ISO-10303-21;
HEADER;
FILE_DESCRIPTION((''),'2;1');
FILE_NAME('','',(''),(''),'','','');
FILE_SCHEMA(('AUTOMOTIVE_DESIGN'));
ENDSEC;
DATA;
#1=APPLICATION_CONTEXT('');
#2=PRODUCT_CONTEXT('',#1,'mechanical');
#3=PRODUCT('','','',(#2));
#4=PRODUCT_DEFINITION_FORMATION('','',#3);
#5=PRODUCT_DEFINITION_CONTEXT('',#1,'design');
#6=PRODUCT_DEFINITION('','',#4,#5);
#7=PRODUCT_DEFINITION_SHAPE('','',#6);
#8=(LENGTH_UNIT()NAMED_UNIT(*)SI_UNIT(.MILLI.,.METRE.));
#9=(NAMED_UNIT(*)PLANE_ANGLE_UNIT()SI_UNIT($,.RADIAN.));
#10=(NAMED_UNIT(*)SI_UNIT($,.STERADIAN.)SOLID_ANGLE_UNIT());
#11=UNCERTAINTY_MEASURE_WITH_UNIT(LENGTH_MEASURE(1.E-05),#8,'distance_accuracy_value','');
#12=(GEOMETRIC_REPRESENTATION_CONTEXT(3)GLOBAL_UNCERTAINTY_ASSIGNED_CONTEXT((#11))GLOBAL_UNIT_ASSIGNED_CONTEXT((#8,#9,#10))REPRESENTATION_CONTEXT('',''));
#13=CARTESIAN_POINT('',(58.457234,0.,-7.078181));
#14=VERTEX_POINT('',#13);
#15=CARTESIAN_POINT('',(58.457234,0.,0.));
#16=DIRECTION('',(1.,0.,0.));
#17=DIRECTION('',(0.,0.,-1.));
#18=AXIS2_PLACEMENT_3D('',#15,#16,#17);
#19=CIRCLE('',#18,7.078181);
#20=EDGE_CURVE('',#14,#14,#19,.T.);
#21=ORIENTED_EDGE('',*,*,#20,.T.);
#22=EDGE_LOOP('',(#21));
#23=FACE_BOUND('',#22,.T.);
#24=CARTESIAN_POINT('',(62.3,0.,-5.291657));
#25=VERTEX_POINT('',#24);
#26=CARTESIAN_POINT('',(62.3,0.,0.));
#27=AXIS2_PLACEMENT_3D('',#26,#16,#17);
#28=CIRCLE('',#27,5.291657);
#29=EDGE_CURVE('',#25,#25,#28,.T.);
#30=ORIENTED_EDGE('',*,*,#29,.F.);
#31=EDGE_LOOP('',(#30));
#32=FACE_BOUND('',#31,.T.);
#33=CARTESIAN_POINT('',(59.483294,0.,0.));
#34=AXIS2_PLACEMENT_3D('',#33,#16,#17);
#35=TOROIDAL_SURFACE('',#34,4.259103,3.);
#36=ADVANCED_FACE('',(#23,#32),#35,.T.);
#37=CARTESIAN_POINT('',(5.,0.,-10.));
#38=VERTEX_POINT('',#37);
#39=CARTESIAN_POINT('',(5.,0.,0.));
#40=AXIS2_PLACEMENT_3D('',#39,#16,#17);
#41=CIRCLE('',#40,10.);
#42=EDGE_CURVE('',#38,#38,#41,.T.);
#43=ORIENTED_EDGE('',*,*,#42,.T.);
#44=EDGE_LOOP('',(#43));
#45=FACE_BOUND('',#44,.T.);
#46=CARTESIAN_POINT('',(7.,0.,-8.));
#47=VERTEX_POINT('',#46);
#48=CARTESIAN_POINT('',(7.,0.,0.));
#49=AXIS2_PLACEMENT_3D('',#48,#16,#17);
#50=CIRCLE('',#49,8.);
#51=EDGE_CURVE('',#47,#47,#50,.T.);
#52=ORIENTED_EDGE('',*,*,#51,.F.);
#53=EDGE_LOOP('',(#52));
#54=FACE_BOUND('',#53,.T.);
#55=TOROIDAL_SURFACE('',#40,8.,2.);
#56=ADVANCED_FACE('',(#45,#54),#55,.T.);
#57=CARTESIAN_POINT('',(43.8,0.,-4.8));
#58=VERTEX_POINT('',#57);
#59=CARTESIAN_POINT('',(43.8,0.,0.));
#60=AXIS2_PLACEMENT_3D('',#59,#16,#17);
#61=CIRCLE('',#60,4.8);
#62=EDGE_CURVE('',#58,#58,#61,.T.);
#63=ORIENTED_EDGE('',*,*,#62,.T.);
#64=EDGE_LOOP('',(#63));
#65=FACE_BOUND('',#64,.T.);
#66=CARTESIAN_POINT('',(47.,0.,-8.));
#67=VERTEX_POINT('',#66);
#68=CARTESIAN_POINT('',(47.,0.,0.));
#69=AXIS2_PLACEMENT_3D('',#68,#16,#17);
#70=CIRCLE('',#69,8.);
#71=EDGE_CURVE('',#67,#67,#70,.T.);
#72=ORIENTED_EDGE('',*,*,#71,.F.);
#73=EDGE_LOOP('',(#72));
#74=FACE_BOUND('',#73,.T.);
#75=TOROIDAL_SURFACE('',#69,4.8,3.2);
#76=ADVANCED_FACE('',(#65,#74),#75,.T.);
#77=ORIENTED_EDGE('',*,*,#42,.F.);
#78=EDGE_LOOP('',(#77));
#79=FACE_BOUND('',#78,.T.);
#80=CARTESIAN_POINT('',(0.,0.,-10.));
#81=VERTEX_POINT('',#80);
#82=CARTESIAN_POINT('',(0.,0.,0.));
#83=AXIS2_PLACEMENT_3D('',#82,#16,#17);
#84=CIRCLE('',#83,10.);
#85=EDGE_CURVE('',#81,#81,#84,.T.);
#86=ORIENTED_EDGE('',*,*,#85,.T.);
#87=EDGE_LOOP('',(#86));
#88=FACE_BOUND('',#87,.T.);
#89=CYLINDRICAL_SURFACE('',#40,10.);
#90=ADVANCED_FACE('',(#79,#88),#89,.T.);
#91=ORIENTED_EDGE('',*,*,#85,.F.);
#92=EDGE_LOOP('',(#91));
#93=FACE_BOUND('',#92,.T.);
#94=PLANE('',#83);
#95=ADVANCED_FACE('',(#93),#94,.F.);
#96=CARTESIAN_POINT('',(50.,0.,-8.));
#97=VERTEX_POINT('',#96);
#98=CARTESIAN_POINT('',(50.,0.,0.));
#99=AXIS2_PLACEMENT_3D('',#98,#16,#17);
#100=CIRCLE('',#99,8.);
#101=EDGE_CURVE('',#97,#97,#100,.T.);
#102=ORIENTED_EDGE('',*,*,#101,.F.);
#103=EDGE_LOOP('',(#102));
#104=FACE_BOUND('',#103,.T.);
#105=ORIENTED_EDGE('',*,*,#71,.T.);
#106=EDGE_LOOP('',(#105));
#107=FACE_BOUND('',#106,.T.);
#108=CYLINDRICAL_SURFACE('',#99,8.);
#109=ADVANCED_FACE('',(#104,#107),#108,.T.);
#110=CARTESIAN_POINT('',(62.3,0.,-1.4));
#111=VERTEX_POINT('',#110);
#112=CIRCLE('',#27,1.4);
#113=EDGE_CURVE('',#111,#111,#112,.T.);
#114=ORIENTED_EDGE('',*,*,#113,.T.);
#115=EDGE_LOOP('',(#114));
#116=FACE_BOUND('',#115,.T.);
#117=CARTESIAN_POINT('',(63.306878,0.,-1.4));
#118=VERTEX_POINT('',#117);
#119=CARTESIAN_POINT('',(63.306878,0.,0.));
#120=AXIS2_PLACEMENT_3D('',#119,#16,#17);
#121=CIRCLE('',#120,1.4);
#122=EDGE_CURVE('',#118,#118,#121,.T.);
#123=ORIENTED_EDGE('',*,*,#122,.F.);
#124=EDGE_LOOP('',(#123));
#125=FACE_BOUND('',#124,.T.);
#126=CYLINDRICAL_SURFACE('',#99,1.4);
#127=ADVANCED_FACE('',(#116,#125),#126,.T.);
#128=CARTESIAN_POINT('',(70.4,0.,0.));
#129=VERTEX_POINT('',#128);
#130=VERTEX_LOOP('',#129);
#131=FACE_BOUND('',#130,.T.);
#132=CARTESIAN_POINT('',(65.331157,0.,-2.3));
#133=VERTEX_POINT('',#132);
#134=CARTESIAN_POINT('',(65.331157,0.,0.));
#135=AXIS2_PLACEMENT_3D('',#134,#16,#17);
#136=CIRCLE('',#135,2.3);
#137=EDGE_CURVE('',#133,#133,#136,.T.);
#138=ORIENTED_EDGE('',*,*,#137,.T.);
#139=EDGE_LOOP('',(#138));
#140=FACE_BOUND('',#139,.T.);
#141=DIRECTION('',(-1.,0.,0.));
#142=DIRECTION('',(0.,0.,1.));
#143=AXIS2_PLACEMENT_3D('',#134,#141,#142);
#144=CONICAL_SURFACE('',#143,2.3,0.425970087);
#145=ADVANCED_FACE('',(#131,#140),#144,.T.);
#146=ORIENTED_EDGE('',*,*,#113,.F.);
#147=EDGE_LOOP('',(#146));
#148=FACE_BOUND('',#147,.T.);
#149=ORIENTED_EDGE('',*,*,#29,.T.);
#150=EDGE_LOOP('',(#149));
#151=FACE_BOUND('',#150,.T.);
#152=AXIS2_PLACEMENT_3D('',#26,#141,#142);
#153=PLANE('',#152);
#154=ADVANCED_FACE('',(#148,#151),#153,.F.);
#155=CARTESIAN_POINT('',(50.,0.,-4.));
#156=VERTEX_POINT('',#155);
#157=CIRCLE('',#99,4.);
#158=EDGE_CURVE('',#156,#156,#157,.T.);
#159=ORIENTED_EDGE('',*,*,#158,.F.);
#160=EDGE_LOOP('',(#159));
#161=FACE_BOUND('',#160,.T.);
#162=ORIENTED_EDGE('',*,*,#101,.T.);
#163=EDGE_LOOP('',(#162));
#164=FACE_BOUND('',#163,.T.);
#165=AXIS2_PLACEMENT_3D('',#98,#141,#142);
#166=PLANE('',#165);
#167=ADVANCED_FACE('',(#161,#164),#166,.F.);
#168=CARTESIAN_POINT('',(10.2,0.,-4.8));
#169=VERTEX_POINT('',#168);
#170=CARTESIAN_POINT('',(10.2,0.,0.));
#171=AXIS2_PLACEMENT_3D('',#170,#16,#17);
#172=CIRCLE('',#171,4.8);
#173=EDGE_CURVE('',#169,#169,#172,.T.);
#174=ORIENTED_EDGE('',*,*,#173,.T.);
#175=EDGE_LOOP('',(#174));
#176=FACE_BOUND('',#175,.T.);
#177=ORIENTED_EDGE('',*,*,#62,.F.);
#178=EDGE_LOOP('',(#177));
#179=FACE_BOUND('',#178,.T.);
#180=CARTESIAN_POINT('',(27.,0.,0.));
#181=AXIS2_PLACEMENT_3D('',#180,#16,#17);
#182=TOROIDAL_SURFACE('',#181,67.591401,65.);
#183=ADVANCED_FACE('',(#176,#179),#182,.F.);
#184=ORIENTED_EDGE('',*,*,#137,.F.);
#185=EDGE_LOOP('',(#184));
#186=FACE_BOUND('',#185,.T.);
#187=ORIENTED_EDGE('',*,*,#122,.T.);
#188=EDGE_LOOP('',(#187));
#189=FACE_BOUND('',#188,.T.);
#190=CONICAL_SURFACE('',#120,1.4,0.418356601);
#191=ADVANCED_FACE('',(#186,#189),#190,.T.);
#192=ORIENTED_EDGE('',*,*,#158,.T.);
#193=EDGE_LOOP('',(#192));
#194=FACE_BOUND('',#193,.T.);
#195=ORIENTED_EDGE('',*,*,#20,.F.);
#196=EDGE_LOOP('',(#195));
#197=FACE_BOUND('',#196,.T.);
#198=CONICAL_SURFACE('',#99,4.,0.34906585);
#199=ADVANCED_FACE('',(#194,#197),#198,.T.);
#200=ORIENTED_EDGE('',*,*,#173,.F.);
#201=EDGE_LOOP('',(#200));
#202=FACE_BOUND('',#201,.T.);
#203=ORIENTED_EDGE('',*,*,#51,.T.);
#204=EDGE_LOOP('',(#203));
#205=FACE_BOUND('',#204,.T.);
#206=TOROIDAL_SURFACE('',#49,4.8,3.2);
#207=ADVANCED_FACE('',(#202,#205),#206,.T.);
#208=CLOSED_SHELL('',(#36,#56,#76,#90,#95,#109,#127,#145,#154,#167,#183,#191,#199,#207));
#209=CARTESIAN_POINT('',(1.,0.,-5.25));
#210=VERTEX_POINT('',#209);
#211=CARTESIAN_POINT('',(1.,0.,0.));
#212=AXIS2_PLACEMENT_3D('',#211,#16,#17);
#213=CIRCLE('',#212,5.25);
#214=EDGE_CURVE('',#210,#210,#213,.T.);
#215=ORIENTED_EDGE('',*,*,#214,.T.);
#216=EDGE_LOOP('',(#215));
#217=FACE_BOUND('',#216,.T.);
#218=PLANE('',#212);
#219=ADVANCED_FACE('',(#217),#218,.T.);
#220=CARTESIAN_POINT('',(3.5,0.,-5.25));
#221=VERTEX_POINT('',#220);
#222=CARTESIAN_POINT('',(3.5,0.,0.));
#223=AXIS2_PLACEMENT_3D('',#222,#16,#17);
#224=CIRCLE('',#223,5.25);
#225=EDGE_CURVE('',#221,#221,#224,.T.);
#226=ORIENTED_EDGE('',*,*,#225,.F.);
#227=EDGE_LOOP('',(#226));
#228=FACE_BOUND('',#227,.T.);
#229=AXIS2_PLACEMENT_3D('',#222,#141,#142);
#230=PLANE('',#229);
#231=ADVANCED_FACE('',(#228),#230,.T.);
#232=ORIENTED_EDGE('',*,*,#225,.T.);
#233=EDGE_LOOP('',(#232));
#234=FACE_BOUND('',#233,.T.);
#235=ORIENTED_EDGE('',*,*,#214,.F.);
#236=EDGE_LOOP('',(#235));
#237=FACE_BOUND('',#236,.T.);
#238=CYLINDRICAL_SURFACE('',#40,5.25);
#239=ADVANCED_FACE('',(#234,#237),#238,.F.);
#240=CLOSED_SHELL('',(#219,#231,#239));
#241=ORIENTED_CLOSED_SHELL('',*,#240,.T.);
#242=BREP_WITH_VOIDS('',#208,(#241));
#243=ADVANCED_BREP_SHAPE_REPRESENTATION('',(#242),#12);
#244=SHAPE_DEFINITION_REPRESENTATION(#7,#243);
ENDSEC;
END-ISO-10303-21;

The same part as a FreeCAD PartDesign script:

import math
import FreeCAD as App
import Part
import Sketcher
from FreeCAD import Vector
Q = App.Units.Quantity

doc = App.newDocument("Part")
params = doc.addObject("Spreadsheet::Sheet", "Params")
for row, (alias, value) in enumerate([
    ("sketch1_radius", "2 mm"),
    ("sketch1_radius2", "3.2 mm"),
    ("sketch1_width", "1 mm"),
    ("sketch1_width2", "5 mm"),
    ("sketch1_height", "10 mm"),
    ("revolution_angle", "360 deg"),
    ("sketch2_radius", "3 mm"),
    ("sketch2_radius2", "65 mm"),
    ("sketch2_radius3", "3.2 mm"),
    ("sketch2_width", "3 mm"),
    ("sketch2_height", "4 mm"),
    ("revolution2_angle", "360 deg"),
], start=1):
    params.set(f"A{row}", alias)
    params.set(f"B{row}", "=" + value)
    params.setAlias(f"B{row}", alias)

body = doc.addObject("PartDesign::Body", "Body")

# Sketch on XZ plane
sketch1 = body.newObject("Sketcher::SketchObject", "Sketch")
sketch1.AttachmentSupport = (doc.getObject("XZ_Plane"), [""])
sketch1.MapMode = "FlatFace"
sketch1.addGeometry(Part.LineSegment(Vector(0, -10, 0), Vector(0, 0, 0)), False)
sketch1.addGeometry(Part.LineSegment(Vector(0, 0, 0), Vector(1, 0, 0)), False)
sketch1.addGeometry(Part.LineSegment(Vector(1, 0, 0), Vector(1, -5.2, 0)), False)
sketch1.addGeometry(Part.LineSegment(Vector(1, -5.2, 0), Vector(3.5, -5.2, 0)), False)
sketch1.addGeometry(Part.LineSegment(Vector(3.5, -5.2, 0), Vector(3.5, 0, 0)), False)
sketch1.addGeometry(Part.LineSegment(Vector(3.5, 0, 0), Vector(10.2, 0, 0)), False)
sketch1.addGeometry(Part.LineSegment(Vector(10.2, 0, 0), Vector(10.2, -4.8, 0)), False)
sketch1.addGeometry(Part.ArcOfCircle(Part.Circle(Vector(7, -4.8, 0), Vector(0, 0, 1), 3.2), math.radians(-90), math.radians(0)), False)
sketch1.addGeometry(Part.ArcOfCircle(Part.Circle(Vector(5, -8, 0), Vector(0, 0, 1), 2), math.radians(-90), math.radians(0)), False)
sketch1.addGeometry(Part.LineSegment(Vector(5, -10, 0), Vector(0, -10, 0)), False)
sketch1.addConstraint(Sketcher.Constraint("Coincident", 0, 2, 1, 1))
sketch1.addConstraint(Sketcher.Constraint("Coincident", 1, 2, 2, 1))
sketch1.addConstraint(Sketcher.Constraint("Coincident", 2, 2, 3, 1))
sketch1.addConstraint(Sketcher.Constraint("Coincident", 3, 2, 4, 1))
sketch1.addConstraint(Sketcher.Constraint("Coincident", 4, 2, 5, 1))
sketch1.addConstraint(Sketcher.Constraint("Coincident", 5, 2, 6, 1))
sketch1.addConstraint(Sketcher.Constraint("Tangent", 6, 2, 7, 2))
sketch1.addConstraint(Sketcher.Constraint("Coincident", 7, 1, 8, 2))
sketch1.addConstraint(Sketcher.Constraint("Tangent", 8, 1, 9, 1))
sketch1.addConstraint(Sketcher.Constraint("Coincident", 9, 2, 0, 1))
sketch1.addConstraint(Sketcher.Constraint("Vertical", 0))
sketch1.addConstraint(Sketcher.Constraint("Horizontal", 1))
sketch1.addConstraint(Sketcher.Constraint("Vertical", 2))
sketch1.addConstraint(Sketcher.Constraint("Horizontal", 3))
sketch1.addConstraint(Sketcher.Constraint("Vertical", 4))
sketch1.addConstraint(Sketcher.Constraint("Horizontal", 5))
sketch1.addConstraint(Sketcher.Constraint("Vertical", 6))
sketch1.addConstraint(Sketcher.Constraint("Horizontal", 9))
sketch1.addConstraint(Sketcher.Constraint("Coincident", 0, 2, -1, 1))
sketch1.addConstraint(Sketcher.Constraint("PointOnObject", 4, 2, -1))
sketch1.addConstraint(Sketcher.Constraint("Horizontal", 8, 3, 7, 1))
sketch1.addConstraint(Sketcher.Constraint("Radius", 8, Q("2 mm")))
sketch1.addConstraint(Sketcher.Constraint("Radius", 7, Q("3.2 mm")))
sketch1.addConstraint(Sketcher.Constraint("DistanceX", 1, 1, 1, 2, Q("1 mm")))
sketch1.addConstraint(Sketcher.Constraint("DistanceX", 9, 2, 9, 1, Q("5 mm")))
sketch1.addConstraint(Sketcher.Constraint("DistanceY", 0, 1, 0, 2, Q("10 mm")))
sketch1.addConstraint(Sketcher.Constraint("DistanceX", 3, 1, 3, 2, Q("2.5 mm")))
sketch1.addConstraint(Sketcher.Constraint("DistanceX", 5, 1, 5, 2, Q("6.7 mm")))
sketch1.addConstraint(Sketcher.Constraint("DistanceY", 2, 2, 2, 1, Q("5.25 mm")))
sketch1.setExpression("Constraints[21]", "Params.sketch1_radius")
sketch1.setExpression("Constraints[22]", "Params.sketch1_radius2")
sketch1.setExpression("Constraints[23]", "Params.sketch1_width")
sketch1.setExpression("Constraints[24]", "Params.sketch1_width2")
sketch1.setExpression("Constraints[25]", "Params.sketch1_height")
revolution = body.newObject("PartDesign::Revolution", "Revolution")
revolution.Profile = sketch1
revolution.ReferenceAxis = (sketch1, ["H_Axis"])
revolution.setExpression("Angle", "Params.revolution_angle")

# Sketch on XZ plane
sketch2 = body.newObject("Sketcher::SketchObject", "Sketch001")
sketch2.AttachmentSupport = (doc.getObject("XZ_Plane"), [""])
sketch2.MapMode = "FlatFace"
sketch2.addGeometry(Part.LineSegment(Vector(10.2, -4.8, 0), Vector(10.2, 0, 0)), False)
sketch2.addGeometry(Part.LineSegment(Vector(10.2, 0, 0), Vector(70.4, 0, 0)), False)
sketch2.addGeometry(Part.LineSegment(Vector(70.4, 0, 0), Vector(65.3, -2.3, 0)), False)
sketch2.addGeometry(Part.LineSegment(Vector(65.3, -2.3, 0), Vector(63.3, -1.4, 0)), False)
sketch2.addGeometry(Part.LineSegment(Vector(63.3, -1.4, 0), Vector(62.3, -1.4, 0)), False)
sketch2.addGeometry(Part.LineSegment(Vector(62.3, -1.4, 0), Vector(62.3, -5.3, 0)), False)
sketch2.addGeometry(Part.ArcOfCircle(Part.Circle(Vector(59.5, -4.3, 0), Vector(0, 0, 1), 3), math.radians(-110), math.radians(-20)), False)
sketch2.addGeometry(Part.LineSegment(Vector(58.5, -7.1, 0), Vector(50, -4, 0)), False)
sketch2.addGeometry(Part.LineSegment(Vector(50, -4, 0), Vector(50, -8, 0)), False)
sketch2.addGeometry(Part.LineSegment(Vector(50, -8, 0), Vector(47, -8, 0)), False)
sketch2.addGeometry(Part.ArcOfCircle(Part.Circle(Vector(47, -4.8, 0), Vector(0, 0, 1), 3.2), math.radians(180), math.radians(270)), False)
sketch2.addGeometry(Part.ArcOfCircle(Part.Circle(Vector(27, -67.6, 0), Vector(0, 0, 1), 65), math.radians(75), math.radians(105)), False)
sketch2.addConstraint(Sketcher.Constraint("Coincident", 0, 2, 1, 1))
sketch2.addConstraint(Sketcher.Constraint("Coincident", 1, 2, 2, 1))
sketch2.addConstraint(Sketcher.Constraint("Coincident", 2, 2, 3, 1))
sketch2.addConstraint(Sketcher.Constraint("Coincident", 3, 2, 4, 1))
sketch2.addConstraint(Sketcher.Constraint("Coincident", 4, 2, 5, 1))
sketch2.addConstraint(Sketcher.Constraint("Coincident", 5, 2, 6, 2))
sketch2.addConstraint(Sketcher.Constraint("Tangent", 6, 1, 7, 1))
sketch2.addConstraint(Sketcher.Constraint("Coincident", 7, 2, 8, 1))
sketch2.addConstraint(Sketcher.Constraint("Coincident", 8, 2, 9, 1))
sketch2.addConstraint(Sketcher.Constraint("Tangent", 9, 2, 10, 2))
sketch2.addConstraint(Sketcher.Constraint("Coincident", 10, 1, 11, 1))
sketch2.addConstraint(Sketcher.Constraint("Coincident", 11, 2, 0, 1))
sketch2.addConstraint(Sketcher.Constraint("Vertical", 0))
sketch2.addConstraint(Sketcher.Constraint("Horizontal", 1))
sketch2.addConstraint(Sketcher.Constraint("Horizontal", 4))
sketch2.addConstraint(Sketcher.Constraint("Vertical", 5))
sketch2.addConstraint(Sketcher.Constraint("Vertical", 8))
sketch2.addConstraint(Sketcher.Constraint("Horizontal", 9))
sketch2.addConstraint(Sketcher.Constraint("PointOnObject", 0, 2, -1))
sketch2.addConstraint(Sketcher.Constraint("Horizontal", 10, 1, 11, 2))
sketch2.addConstraint(Sketcher.Constraint("Radius", 6, Q("3 mm")))
sketch2.addConstraint(Sketcher.Constraint("Radius", 11, Q("65 mm")))
sketch2.addConstraint(Sketcher.Constraint("Radius", 10, Q("3.2 mm")))
sketch2.addConstraint(Sketcher.Constraint("DistanceX", 9, 2, 9, 1, Q("3 mm")))
sketch2.addConstraint(Sketcher.Constraint("DistanceY", 8, 2, 8, 1, Q("4 mm")))
sketch2.addConstraint(Sketcher.Constraint("Angle", 7, Q("160 deg")))
sketch2.addConstraint(Sketcher.Constraint("Distance", 7, Q("9 mm")))
sketch2.addConstraint(Sketcher.Constraint("DistanceX", 1, 1, 1, 2, Q("60.2 mm")))
sketch2.addConstraint(Sketcher.Constraint("DistanceY", 0, 1, 0, 2, Q("4.8 mm")))
sketch2.addConstraint(Sketcher.Constraint("DistanceX", -1, 1, 10, 3, Q("47 mm")))
sketch2.addConstraint(Sketcher.Constraint("DistanceX", -1, 1, 11, 3, Q("27 mm")))
sketch2.addConstraint(Sketcher.Constraint("DistanceY", 7, 2, -1, 1, Q("4 mm")))
sketch2.addConstraint(Sketcher.Constraint("DistanceY", 2, 2, -1, 1, Q("2.3 mm")))
sketch2.addConstraint(Sketcher.Constraint("DistanceY", 3, 2, -1, 1, Q("1.4 mm")))
sketch2.addConstraint(Sketcher.Constraint("DistanceX", -1, 1, 4, 2, Q("62.3 mm")))
sketch2.addConstraint(Sketcher.Constraint("DistanceX", 4, 2, 4, 1, Q("1.006878 mm")))
sketch2.addConstraint(Sketcher.Constraint("DistanceX", 3, 2, 2, 2, Q("2.024279 mm")))
sketch2.setExpression("Constraints[20]", "Params.sketch2_radius")
sketch2.setExpression("Constraints[21]", "Params.sketch2_radius2")
sketch2.setExpression("Constraints[22]", "Params.sketch2_radius3")
sketch2.setExpression("Constraints[23]", "Params.sketch2_width")
sketch2.setExpression("Constraints[24]", "Params.sketch2_height")
revolution2 = body.newObject("PartDesign::Revolution", "Revolution001")
revolution2.Profile = sketch2
revolution2.ReferenceAxis = (sketch2, ["H_Axis"])
revolution2.setExpression("Angle", "Params.revolution2_angle")

doc.recompute()
